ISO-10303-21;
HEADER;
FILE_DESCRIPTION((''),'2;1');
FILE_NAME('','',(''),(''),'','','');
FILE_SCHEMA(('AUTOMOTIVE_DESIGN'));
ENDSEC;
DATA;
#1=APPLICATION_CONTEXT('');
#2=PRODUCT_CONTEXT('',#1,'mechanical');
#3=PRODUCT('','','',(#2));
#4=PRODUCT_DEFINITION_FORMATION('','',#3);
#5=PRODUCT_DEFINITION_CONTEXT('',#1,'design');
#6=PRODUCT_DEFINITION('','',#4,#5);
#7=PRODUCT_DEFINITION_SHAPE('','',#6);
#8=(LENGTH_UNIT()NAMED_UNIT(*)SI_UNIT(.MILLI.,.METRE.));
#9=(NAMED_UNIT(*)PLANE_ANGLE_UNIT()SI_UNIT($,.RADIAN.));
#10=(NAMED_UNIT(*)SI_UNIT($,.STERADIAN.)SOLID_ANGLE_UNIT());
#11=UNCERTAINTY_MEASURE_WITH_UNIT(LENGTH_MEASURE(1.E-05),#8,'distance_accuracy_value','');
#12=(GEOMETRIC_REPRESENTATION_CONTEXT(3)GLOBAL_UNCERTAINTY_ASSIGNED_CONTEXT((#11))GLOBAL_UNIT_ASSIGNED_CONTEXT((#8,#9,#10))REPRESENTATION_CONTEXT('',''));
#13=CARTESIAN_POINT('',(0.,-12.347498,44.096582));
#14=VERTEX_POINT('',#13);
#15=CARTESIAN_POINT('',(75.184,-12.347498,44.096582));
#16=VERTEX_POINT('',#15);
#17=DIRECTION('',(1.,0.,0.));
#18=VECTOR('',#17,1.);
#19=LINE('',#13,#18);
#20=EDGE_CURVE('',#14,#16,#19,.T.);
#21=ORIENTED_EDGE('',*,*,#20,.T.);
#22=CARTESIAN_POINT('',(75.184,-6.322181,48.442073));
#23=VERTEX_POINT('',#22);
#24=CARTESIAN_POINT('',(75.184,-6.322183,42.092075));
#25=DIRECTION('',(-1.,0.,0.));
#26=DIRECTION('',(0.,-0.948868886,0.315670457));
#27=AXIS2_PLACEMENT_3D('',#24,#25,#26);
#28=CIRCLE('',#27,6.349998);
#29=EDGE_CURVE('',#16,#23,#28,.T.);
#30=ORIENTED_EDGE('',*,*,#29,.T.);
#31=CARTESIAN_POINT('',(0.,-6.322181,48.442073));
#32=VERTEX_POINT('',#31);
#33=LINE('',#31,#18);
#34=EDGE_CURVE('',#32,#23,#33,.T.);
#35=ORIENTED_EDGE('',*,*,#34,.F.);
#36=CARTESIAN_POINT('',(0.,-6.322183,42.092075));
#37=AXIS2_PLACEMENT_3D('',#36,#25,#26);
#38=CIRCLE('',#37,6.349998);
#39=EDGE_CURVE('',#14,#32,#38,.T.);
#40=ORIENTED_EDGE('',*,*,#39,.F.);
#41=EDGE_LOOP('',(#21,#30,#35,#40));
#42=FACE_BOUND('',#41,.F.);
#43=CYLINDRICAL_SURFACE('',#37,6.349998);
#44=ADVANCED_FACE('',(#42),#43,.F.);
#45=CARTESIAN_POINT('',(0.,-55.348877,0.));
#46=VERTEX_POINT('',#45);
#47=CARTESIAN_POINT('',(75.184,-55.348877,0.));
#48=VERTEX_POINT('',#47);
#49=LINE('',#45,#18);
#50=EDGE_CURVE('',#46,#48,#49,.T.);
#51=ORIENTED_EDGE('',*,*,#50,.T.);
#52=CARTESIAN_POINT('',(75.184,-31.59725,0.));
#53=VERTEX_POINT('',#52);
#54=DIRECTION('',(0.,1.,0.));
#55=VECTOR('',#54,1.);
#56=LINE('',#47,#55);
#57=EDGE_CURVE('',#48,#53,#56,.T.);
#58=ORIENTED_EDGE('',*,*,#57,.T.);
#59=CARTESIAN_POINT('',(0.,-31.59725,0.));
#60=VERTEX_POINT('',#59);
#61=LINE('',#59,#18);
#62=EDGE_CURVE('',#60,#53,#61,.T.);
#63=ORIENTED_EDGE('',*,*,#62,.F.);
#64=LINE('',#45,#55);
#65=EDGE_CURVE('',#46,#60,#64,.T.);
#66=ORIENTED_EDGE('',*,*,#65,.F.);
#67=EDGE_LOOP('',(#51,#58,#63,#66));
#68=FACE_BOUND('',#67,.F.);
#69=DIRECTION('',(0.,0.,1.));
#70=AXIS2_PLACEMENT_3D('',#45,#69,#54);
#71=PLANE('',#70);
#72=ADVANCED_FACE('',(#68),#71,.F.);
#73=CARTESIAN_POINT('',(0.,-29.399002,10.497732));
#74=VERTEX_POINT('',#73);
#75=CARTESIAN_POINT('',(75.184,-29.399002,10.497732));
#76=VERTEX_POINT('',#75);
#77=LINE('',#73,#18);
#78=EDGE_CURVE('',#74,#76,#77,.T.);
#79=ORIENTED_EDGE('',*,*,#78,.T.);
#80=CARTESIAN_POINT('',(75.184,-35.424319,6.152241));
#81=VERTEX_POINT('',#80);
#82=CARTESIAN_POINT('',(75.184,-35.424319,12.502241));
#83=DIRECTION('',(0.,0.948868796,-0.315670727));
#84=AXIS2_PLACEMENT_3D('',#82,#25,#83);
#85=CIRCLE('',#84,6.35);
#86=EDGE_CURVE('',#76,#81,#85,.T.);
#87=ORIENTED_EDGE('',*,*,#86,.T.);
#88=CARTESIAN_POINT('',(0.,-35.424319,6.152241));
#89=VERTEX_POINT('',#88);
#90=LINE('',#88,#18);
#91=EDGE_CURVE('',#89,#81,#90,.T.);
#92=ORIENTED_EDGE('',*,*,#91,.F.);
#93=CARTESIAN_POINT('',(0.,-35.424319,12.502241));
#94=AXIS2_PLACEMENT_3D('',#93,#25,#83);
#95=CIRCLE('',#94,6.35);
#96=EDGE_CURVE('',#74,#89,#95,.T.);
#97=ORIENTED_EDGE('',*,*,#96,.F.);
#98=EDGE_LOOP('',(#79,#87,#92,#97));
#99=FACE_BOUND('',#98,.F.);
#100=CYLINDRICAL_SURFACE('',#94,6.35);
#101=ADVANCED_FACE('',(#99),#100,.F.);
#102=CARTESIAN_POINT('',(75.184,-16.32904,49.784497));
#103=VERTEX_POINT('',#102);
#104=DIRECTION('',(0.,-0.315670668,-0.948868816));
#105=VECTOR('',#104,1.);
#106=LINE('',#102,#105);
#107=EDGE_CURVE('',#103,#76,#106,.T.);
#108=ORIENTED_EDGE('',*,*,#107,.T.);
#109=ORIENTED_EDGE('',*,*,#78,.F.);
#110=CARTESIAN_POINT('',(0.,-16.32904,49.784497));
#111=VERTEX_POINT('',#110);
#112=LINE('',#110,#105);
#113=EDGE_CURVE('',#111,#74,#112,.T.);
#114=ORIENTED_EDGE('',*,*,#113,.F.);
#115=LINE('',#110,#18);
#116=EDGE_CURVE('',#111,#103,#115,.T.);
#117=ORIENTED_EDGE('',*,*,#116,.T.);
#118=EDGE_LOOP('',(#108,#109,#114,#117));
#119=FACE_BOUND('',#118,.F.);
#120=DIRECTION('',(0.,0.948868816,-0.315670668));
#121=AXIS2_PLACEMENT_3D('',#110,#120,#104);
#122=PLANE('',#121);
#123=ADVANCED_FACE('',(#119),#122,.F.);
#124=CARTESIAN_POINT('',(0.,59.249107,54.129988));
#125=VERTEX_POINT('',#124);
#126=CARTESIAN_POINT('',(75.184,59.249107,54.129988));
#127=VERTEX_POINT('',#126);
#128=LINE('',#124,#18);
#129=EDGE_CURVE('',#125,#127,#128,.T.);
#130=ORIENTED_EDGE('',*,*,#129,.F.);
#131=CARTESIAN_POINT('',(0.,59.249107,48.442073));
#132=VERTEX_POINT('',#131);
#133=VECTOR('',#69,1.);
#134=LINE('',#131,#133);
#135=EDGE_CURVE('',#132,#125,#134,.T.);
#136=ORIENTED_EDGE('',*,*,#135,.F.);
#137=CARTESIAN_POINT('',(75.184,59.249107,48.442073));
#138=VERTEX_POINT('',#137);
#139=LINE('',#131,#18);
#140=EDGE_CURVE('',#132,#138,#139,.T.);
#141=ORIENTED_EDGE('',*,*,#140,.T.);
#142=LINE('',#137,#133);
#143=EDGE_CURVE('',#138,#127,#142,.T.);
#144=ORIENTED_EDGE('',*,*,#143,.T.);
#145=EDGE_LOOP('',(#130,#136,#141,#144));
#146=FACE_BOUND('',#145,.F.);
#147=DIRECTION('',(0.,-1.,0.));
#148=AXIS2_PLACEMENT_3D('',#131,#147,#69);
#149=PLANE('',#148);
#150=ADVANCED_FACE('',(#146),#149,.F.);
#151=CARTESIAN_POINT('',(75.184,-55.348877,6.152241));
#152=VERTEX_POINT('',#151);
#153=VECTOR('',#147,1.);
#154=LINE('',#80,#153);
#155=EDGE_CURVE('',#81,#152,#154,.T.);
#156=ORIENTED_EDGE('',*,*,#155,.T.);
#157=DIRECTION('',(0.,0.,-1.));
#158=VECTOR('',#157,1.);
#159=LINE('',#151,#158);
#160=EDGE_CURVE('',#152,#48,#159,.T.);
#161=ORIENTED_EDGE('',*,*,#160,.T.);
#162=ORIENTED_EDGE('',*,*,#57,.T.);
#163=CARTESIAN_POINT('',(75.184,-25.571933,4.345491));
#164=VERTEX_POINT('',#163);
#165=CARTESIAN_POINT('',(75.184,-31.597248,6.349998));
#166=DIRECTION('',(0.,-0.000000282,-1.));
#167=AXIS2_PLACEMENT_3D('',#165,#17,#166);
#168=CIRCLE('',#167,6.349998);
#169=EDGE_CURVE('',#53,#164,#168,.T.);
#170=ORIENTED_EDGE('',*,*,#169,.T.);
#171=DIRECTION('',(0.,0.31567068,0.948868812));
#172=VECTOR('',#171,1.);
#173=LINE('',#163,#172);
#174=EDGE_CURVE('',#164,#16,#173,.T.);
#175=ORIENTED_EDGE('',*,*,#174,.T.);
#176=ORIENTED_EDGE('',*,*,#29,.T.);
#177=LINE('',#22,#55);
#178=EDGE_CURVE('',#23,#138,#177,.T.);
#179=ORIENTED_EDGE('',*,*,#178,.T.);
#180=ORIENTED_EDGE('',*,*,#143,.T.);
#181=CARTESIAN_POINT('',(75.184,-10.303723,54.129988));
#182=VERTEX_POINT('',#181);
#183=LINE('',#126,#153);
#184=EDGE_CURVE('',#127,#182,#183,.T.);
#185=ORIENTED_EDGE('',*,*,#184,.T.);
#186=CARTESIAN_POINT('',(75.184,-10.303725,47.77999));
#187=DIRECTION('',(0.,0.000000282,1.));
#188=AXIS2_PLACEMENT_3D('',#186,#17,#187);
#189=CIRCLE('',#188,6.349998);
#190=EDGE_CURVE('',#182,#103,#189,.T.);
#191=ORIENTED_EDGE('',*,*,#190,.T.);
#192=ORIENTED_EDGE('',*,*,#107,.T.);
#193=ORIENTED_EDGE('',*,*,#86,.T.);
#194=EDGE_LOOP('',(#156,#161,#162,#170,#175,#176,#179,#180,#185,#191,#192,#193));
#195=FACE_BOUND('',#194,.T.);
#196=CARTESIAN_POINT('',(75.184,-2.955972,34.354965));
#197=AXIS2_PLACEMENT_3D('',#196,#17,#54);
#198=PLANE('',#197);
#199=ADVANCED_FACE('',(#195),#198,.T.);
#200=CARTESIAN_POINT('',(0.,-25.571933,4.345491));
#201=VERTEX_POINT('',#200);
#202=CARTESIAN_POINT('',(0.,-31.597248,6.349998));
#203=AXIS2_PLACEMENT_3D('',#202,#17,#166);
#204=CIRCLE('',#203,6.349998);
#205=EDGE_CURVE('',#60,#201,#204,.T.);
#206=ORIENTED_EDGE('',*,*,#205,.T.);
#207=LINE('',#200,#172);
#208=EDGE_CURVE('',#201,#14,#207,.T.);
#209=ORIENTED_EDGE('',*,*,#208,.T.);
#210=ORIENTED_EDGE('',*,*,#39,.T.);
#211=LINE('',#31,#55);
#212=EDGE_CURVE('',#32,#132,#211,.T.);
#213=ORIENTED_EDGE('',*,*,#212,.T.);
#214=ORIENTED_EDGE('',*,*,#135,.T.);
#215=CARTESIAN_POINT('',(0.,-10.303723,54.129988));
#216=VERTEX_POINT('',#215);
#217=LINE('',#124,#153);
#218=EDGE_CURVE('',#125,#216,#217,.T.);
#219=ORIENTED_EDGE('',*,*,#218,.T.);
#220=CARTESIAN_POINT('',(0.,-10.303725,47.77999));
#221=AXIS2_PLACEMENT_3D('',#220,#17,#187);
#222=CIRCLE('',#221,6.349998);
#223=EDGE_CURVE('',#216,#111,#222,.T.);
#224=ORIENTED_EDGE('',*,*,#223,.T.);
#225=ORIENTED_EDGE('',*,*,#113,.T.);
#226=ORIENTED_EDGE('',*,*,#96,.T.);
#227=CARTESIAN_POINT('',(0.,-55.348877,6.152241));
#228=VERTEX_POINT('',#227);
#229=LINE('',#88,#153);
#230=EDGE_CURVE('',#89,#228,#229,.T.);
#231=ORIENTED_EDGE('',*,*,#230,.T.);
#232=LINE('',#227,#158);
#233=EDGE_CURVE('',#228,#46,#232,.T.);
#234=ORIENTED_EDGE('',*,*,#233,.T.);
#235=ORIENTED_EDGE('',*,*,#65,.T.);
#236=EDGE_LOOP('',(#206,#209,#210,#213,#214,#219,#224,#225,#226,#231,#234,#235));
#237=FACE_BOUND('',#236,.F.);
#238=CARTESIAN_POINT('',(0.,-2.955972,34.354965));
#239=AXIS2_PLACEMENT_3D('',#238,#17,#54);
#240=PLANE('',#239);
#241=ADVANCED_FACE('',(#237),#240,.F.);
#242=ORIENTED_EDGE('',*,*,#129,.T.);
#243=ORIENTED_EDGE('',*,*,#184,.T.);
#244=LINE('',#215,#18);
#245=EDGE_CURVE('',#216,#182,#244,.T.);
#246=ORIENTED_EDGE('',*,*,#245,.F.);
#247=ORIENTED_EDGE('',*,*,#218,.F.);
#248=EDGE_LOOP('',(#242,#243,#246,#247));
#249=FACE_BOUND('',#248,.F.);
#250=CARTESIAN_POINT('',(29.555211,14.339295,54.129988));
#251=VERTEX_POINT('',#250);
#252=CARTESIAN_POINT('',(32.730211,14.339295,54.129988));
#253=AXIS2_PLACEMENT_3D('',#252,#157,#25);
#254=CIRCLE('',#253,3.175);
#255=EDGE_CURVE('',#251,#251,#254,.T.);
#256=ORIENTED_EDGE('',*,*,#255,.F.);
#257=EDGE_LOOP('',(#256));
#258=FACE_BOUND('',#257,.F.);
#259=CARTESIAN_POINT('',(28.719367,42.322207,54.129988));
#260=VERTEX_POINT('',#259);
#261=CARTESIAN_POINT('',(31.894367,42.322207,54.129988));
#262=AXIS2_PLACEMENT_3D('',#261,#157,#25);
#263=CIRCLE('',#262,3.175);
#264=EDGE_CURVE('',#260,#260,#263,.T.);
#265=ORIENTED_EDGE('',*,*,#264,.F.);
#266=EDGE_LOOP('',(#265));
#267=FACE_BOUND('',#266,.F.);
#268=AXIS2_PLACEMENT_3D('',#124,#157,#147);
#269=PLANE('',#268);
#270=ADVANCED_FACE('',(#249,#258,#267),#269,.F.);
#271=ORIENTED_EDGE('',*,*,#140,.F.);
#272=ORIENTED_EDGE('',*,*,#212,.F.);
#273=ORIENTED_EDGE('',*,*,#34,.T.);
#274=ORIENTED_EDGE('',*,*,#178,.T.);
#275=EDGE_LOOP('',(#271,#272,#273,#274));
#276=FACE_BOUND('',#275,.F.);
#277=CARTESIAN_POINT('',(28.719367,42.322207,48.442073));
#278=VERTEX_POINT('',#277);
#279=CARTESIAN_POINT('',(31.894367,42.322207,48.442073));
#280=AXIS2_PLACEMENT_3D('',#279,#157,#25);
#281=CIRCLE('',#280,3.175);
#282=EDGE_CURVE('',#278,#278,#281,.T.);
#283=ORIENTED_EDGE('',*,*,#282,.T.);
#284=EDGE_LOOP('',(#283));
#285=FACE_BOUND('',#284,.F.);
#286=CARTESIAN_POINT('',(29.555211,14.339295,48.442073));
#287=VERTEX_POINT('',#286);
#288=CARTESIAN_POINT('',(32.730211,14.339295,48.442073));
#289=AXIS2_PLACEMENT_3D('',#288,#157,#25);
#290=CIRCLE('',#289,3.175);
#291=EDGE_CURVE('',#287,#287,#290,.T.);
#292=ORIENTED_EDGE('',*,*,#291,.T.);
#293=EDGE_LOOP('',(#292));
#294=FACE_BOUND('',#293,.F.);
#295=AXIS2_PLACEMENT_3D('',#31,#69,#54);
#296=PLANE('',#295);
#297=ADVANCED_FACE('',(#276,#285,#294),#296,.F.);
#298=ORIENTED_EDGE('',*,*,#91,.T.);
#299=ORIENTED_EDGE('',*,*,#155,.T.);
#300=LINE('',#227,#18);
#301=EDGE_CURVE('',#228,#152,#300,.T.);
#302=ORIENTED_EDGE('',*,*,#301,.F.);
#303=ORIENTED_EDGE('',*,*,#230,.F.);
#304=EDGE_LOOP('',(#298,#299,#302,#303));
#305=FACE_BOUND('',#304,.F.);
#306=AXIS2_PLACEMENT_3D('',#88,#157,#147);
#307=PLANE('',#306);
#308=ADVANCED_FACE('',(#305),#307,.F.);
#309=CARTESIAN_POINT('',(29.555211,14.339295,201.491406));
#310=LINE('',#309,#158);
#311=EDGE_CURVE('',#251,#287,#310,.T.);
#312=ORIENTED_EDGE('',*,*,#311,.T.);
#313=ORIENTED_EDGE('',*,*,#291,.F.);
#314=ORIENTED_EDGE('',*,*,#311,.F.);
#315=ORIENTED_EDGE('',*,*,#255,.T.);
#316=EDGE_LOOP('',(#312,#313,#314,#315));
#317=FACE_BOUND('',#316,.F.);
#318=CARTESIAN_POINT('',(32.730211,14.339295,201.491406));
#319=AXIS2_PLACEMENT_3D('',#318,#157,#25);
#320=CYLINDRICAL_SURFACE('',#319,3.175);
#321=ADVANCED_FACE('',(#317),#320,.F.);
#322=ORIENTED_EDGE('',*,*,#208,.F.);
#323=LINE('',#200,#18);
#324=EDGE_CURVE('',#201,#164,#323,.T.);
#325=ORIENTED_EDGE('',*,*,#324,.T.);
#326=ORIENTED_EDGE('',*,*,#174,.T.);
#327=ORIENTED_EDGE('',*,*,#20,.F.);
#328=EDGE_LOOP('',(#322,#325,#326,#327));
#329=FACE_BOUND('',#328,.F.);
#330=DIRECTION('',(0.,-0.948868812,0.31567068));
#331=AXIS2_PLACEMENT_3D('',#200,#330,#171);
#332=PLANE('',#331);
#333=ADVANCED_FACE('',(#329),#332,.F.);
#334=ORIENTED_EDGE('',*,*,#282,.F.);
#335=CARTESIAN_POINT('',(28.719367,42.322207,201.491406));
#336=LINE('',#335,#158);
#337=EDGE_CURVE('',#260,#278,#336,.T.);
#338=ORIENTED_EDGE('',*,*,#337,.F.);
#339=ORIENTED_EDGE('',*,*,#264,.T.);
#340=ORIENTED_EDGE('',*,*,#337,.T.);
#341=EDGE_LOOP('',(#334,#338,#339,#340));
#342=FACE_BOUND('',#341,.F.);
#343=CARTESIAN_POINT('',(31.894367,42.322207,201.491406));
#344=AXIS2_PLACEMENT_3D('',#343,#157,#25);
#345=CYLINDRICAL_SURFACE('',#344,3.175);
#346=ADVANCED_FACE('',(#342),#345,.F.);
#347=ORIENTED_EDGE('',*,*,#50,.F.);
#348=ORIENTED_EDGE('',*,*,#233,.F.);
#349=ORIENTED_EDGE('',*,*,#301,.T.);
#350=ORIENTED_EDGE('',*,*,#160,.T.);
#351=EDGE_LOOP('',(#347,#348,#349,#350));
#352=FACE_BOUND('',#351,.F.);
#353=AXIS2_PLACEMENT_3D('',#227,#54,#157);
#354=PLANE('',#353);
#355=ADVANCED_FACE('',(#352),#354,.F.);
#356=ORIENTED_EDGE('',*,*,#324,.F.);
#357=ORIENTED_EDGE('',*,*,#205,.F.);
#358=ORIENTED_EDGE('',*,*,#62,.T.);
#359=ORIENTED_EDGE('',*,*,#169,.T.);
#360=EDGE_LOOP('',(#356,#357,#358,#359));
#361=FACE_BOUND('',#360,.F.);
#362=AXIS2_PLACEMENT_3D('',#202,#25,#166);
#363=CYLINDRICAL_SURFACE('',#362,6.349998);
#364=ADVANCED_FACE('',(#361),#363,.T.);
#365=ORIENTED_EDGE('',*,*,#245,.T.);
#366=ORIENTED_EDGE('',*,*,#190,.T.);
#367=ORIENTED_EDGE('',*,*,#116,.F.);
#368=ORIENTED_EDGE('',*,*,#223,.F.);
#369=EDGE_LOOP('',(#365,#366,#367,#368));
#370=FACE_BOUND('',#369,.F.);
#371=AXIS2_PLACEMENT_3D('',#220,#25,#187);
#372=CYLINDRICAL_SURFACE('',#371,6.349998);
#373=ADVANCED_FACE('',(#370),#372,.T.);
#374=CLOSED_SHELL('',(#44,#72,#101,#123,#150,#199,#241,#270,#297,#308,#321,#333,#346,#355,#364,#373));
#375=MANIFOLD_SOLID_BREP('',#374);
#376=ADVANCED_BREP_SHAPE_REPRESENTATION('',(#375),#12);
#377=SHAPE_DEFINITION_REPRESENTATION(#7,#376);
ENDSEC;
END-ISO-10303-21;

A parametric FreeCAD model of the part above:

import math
import FreeCAD as App
import Part
import Sketcher
from FreeCAD import Vector
Q = App.Units.Quantity

doc = App.newDocument("Part")
body = doc.addObject("PartDesign::Body", "Body")

# Sketch on YZ plane
sketch1 = body.newObject("Sketcher::SketchObject", "Sketch")
sketch1.AttachmentSupport = (doc.getObject("YZ_Plane"), [""])
sketch1.MapMode = "FlatFace"
sketch1.addGeometry([
    Part.LineSegment(Vector(-55, 6, 0), Vector(-55, 0, 0)),  # 0
    Part.LineSegment(Vector(-55, 0, 0), Vector(-32, 0, 0)),  # 1
    Part.ArcOfCircle(Part.Circle(Vector(-32, 6, 0), Vector(0, 0, 1), 6), math.radians(-90), math.radians(-18)),  # 2
    Part.LineSegment(Vector(-26, 4, 0), Vector(-12, 44, 0)),  # 3
    Part.ArcOfCircle(Part.Circle(Vector(-6, 42, 0), Vector(0, 0, 1), 6), math.radians(90), math.radians(162)),  # 4
    Part.LineSegment(Vector(-6, 48, 0), Vector(59, 48, 0)),  # 5
    Part.LineSegment(Vector(59, 48, 0), Vector(59, 54, 0)),  # 6
    Part.LineSegment(Vector(59, 54, 0), Vector(-10, 54, 0)),  # 7
    Part.ArcOfCircle(Part.Circle(Vector(-10, 48, 0), Vector(0, 0, 1), 6), math.radians(90), math.radians(162)),  # 8
    Part.LineSegment(Vector(-16, 50, 0), Vector(-29, 10, 0)),  # 9
    Part.ArcOfCircle(Part.Circle(Vector(-35, 13, 0), Vector(0, 0, 1), 6), math.radians(-90), math.radians(-18)),  # 10
    Part.LineSegment(Vector(-35, 6, 0), Vector(-55, 6, 0)),  # 11
], False)
sketch1.addConstraint([
    Sketcher.Constraint("Coincident", 0, 2, 1, 1),
    Sketcher.Constraint("Tangent", 1, 2, 2, 1),
    Sketcher.Constraint("Tangent", 2, 2, 3, 1),
    Sketcher.Constraint("Tangent", 3, 2, 4, 2),
    Sketcher.Constraint("Tangent", 4, 1, 5, 1),
    Sketcher.Constraint("Coincident", 5, 2, 6, 1),
    Sketcher.Constraint("Coincident", 6, 2, 7, 1),
    Sketcher.Constraint("Tangent", 7, 2, 8, 1),
    Sketcher.Constraint("Tangent", 8, 2, 9, 1),
    Sketcher.Constraint("Tangent", 9, 2, 10, 2),
    Sketcher.Constraint("Tangent", 10, 1, 11, 1),
    Sketcher.Constraint("Coincident", 11, 2, 0, 1),
    Sketcher.Constraint("Vertical", 0),
    Sketcher.Constraint("Horizontal", 1),
    Sketcher.Constraint("Horizontal", 5),
    Sketcher.Constraint("Vertical", 6),
    Sketcher.Constraint("Horizontal", 7),
    Sketcher.Constraint("Horizontal", 11),
    Sketcher.Constraint("Equal", 2, 4),
    Sketcher.Constraint("Equal", 4, 8),
    Sketcher.Constraint("PointOnObject", 0, 2, -1),
    Sketcher.Constraint("Parallel", 3, 9),
    Sketcher.Constraint("Radius", 2, Q("0.2499999 in")),
    Sketcher.Constraint("Radius", 10, Q("0.25 in")),
    Sketcher.Constraint("DistanceX", 10, 3, 7, 2, Q("0.9889998 in")),
    Sketcher.Constraint("DistanceX", 7, 2, 7, 1, 69.55283),
    Sketcher.Constraint("DistanceX", 11, 2, 11, 1, 19.924558),
    Sketcher.Constraint("DistanceY", 0, 2, 0, 1, 6.152241),
    Sketcher.Constraint("DistanceX", 9, 2, -1, 1, 29.399002),
    Sketcher.Constraint("Distance", 9, 41.40379),
    Sketcher.Constraint("DistanceX", 1, 1, 1, 2, 23.751627),
    Sketcher.Constraint("DistanceX", 5, 1, 5, 2, 65.571288),
])
pad1 = body.newObject("PartDesign::Pad", "Pad")
pad1.Profile = sketch1
pad1.Length = Q("2.96 in")

# Sketch on XY plane
sketch2 = body.newObject("Sketcher::SketchObject", "Sketch001")
sketch2.AttachmentSupport = (doc.getObject("XY_Plane"), [""])
sketch2.MapMode = "FlatFace"
sketch2.AttachmentOffset = App.Placement(Vector(0, 0, 54.129988), App.Rotation())
sketch2.addGeometry([
    Part.Circle(Vector(31.9, 42.3, 0), Vector(0, 0, 1), 3.2),
    Part.Circle(Vector(32.7, 14.3, 0), Vector(0, 0, 1), 3.2),
    Part.Circle(Vector(79.8, -91.8, 0), Vector(0, 0, 1), 3.2),
], False)
sketch2.addConstraint([
    Sketcher.Constraint("Equal", 0, 1),
    Sketcher.Constraint("Equal", 1, 2),
    Sketcher.Constraint("Diameter", 0, Q("0.25 in")),
    Sketcher.Constraint("DistanceX", -1, 1, 1, 3, 32.730211),
    Sketcher.Constraint("DistanceY", 2, 3, -1, 1, 91.813229),
    Sketcher.Constraint("DistanceY", 1, 3, 0, 3, 27.982912),
    Sketcher.Constraint("DistanceX", 0, 3, 2, 3, 47.87783),
    Sketcher.Constraint("DistanceX", -1, 1, 0, 3, 31.894367),
    Sketcher.Constraint("DistanceY", -1, 1, 0, 3, 42.322207),
])
doc.recompute()
hole = body.newObject("PartDesign::Hole", "Hole")
hole.Profile = sketch2
hole.ThreadType = "None"
hole.Diameter = Q("0.25 in")
hole.DepthType = "ThroughAll"

doc.recompute()
